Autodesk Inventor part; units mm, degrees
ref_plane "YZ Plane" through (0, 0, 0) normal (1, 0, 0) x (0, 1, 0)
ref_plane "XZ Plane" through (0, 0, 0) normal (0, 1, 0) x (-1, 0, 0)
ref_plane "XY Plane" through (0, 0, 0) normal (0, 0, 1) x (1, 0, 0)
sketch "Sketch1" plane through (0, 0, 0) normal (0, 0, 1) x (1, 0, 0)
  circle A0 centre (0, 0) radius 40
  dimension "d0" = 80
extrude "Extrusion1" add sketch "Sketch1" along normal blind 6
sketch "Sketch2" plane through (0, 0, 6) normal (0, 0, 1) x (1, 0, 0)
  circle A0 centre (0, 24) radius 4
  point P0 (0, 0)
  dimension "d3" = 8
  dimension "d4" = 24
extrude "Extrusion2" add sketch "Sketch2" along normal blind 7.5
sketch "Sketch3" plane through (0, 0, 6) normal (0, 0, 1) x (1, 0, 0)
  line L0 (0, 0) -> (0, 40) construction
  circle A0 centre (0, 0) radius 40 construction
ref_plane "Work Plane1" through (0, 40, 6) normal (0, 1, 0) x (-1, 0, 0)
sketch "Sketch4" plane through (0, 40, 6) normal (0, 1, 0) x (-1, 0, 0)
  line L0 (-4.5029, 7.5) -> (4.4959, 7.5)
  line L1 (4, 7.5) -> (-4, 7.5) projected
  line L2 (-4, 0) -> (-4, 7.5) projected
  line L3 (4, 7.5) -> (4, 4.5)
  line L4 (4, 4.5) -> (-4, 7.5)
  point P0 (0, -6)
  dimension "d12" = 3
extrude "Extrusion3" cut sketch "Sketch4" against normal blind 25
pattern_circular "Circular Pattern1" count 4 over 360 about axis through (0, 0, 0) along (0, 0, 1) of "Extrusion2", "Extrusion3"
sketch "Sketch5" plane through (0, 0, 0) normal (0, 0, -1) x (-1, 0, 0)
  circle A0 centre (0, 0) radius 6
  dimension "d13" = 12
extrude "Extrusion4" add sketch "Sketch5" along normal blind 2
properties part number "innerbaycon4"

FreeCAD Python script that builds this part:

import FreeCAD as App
import Part
import Sketcher
from FreeCAD import Vector

doc = App.newDocument("Part")
body = doc.addObject("PartDesign::Body", "Body")

# Sketch on XY plane
sketch1 = doc.addObject("Sketcher::SketchObject", "Sketch")
body.addObject(sketch1)
sketch1.AttachmentSupport = (doc.XY_Plane, [""])
sketch1.MapMode = "FlatFace"
sketch1.addGeometry(Part.Circle(Vector(0, 0, 0), Vector(0, 0, 1), 40), False)
sketch1.addConstraint(Sketcher.Constraint("Coincident", 0, 3, -1, 1))
sketch1.addConstraint(Sketcher.Constraint("Diameter", 0, 80.0))
pad1 = doc.addObject("PartDesign::Pad", "Pad")
body.addObject(pad1)
pad1.Profile = sketch1
pad1.Length = 6

# Sketch on XY plane
sketch2 = doc.addObject("Sketcher::SketchObject", "Sketch001")
body.addObject(sketch2)
sketch2.AttachmentSupport = (doc.XY_Plane, [""])
sketch2.MapMode = "FlatFace"
sketch2.AttachmentOffset = App.Placement(Vector(0, 0, 6), App.Rotation())
sketch2.addGeometry(Part.Circle(Vector(0, 24, 0), Vector(0, 0, 1), 4), False)
sketch2.addConstraint(Sketcher.Constraint("PointOnObject", 0, 3, -2))
sketch2.addConstraint(Sketcher.Constraint("Diameter", 0, 8.0))
sketch2.addConstraint(Sketcher.Constraint("DistanceY", -1, 1, 0, 3, 24.0))
pad2 = doc.addObject("PartDesign::Pad", "Pad001")
body.addObject(pad2)
pad2.Profile = sketch2
pad2.Length = 7.5

# Sketch on XZ plane
sketch3 = doc.addObject("Sketcher::SketchObject", "Sketch002")
body.addObject(sketch3)
sketch3.AttachmentSupport = (doc.XZ_Plane, [""])
sketch3.MapMode = "FlatFace"
sketch3.AttachmentOffset = App.Placement(Vector(0, 0, -40), App.Rotation())
sketch3.addGeometry(Part.LineSegment(Vector(-4, 13.5, 0), Vector(4, 13.5, 0)), False)
sketch3.addGeometry(Part.LineSegment(Vector(4, 13.5, 0), Vector(-4, 10.5, 0)), False)
sketch3.addGeometry(Part.LineSegment(Vector(-4, 10.5, 0), Vector(-4, 13.5, 0)), False)
sketch3.addConstraint(Sketcher.Constraint("Coincident", 0, 2, 1, 1))
sketch3.addConstraint(Sketcher.Constraint("Coincident", 1, 2, 2, 1))
sketch3.addConstraint(Sketcher.Constraint("Coincident", 2, 2, 0, 1))
sketch3.addConstraint(Sketcher.Constraint("Horizontal", 0))
sketch3.addConstraint(Sketcher.Constraint("Vertical", 2))
sketch3.addConstraint(Sketcher.Constraint("DistanceY", 2, 1, 2, 2, 3.0))
sketch3.addConstraint(Sketcher.Constraint("DistanceX", 0, 1, 0, 2, 8.0))
sketch3.addConstraint(Sketcher.Constraint("DistanceX", -1, 1, 0, 2, 4.0))
sketch3.addConstraint(Sketcher.Constraint("DistanceY", -1, 1, 0, 2, 13.5))
pocket1 = doc.addObject("PartDesign::Pocket", "Pocket")
body.addObject(pocket1)
pocket1.Profile = sketch3
pocket1.Length = 25
pocket1.Reversed = True
doc.recompute()

polarpattern = doc.addObject("PartDesign::PolarPattern", "PolarPattern")
body.addObject(polarpattern)
polarpattern.Originals = [pad2, pocket1]
polarpattern.Axis = (doc.Z_Axis, [""])
polarpattern.Angle = 360
polarpattern.Occurrences = 4
body.Tip = polarpattern

# Sketch on XY plane
sketch4 = doc.addObject("Sketcher::SketchObject", "Sketch003")
body.addObject(sketch4)
sketch4.AttachmentSupport = (doc.XY_Plane, [""])
sketch4.MapMode = "FlatFace"
sketch4.addGeometry(Part.Circle(Vector(0, 0, 0), Vector(0, 0, 1), 6), False)
sketch4.addConstraint(Sketcher.Constraint("Coincident", 0, 3, -1, 1))
sketch4.addConstraint(Sketcher.Constraint("Diameter", 0, 12.0))
pad3 = doc.addObject("PartDesign::Pad", "Pad002")
body.addObject(pad3)
pad3.Profile = sketch4
pad3.Length = 2
pad3.Reversed = True

doc.recompute()
